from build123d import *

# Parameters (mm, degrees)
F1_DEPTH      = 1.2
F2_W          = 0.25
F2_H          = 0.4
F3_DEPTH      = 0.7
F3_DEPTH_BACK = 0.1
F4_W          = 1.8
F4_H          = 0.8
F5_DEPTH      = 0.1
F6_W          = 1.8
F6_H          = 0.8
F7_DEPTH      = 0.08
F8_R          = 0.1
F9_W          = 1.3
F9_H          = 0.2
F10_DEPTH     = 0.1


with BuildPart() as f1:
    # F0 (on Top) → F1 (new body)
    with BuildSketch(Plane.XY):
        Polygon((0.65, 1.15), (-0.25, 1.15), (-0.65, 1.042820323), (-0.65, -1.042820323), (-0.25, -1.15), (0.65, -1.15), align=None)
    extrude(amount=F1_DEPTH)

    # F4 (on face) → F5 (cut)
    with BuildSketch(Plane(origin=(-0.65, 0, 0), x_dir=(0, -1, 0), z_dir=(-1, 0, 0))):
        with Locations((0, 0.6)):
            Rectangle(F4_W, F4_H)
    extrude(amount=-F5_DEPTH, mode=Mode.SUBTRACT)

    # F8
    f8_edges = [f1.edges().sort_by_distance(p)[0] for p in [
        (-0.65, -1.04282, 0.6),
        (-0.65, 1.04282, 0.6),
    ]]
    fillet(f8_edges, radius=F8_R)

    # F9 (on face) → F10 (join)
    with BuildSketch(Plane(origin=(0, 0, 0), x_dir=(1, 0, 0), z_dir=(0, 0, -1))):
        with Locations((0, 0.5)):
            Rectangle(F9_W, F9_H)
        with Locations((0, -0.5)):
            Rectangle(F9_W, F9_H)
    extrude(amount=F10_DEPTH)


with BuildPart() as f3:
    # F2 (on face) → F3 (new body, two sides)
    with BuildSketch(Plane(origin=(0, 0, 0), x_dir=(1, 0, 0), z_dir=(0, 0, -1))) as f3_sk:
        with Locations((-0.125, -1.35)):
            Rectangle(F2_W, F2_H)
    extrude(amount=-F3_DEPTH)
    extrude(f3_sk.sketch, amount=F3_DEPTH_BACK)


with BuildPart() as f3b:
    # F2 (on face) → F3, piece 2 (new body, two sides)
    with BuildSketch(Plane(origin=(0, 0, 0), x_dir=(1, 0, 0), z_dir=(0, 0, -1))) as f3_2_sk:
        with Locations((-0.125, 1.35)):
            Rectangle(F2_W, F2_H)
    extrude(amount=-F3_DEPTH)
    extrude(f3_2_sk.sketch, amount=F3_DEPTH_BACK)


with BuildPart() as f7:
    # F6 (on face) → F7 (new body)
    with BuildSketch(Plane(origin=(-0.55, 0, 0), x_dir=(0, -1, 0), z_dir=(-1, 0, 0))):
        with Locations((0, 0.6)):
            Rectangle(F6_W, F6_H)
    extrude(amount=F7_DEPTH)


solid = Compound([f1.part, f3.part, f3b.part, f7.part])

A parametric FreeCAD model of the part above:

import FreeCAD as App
import Part
import Sketcher
Q = App.Units.Quantity


def edges_at(feature, points):
    """Names of the edges that pass closest to the given points."""
    edges = feature.Shape.Edges
    near = lambda p: min(range(len(edges)), key=lambda i: edges[i].distToShape(Part.Vertex(*p))[0])
    return sorted({f"Edge{near(p) + 1}" for p in points})


def add_polygon(sketch, points):
    """Adds a closed chain of lines whose ends are joined by coincident constraints."""
    first, n = sketch.GeometryCount, len(points)
    for a, b in zip(points, points[1:] + points[:1]):
        sketch.addGeometry(Part.LineSegment(App.Vector(*a, 0), App.Vector(*b, 0)), False)
    for i in range(n):
        sketch.addConstraint(Sketcher.Constraint("Coincident", first + i, 2, first + (i + 1) % n, 1))

doc = App.newDocument("Part")
body = doc.addObject("PartDesign::Body", "Body")

sketch1 = body.newObject("Sketcher::SketchObject", "Sketch")
sketch1.AttachmentSupport = (doc.getObject("XY_Plane"), [""])
sketch1.MapMode = "FlatFace"
add_polygon(sketch1, [(0.65, 1.15), (-0.25, 1.15), (-0.65, 1.04), (-0.65, -1.04), (-0.25, -1.15), (0.65, -1.15)])
sketch1.addConstraint(Sketcher.Constraint("Horizontal", 0))
sketch1.addConstraint(Sketcher.Constraint("Vertical", 2))
sketch1.addConstraint(Sketcher.Constraint("Horizontal", 4))
sketch1.addConstraint(Sketcher.Constraint("Vertical", 5))
sketch1.addConstraint(Sketcher.Constraint("Symmetric", 0, 2, 3, 2, -1))
sketch1.addConstraint(Sketcher.Constraint("Equal", 1, 3))
sketch1.addConstraint(Sketcher.Constraint("Angle", 1, Q("-165 deg")))
sketch1.addConstraint(Sketcher.Constraint("DistanceX", 0, 2, 0, 1, Q("0.9 mm")))
sketch1.addConstraint(Sketcher.Constraint("DistanceY", 5, 1, 5, 2, Q("2.3 mm")))
sketch1.addConstraint(Sketcher.Constraint("DistanceX", 1, 2, 0, 2, Q("0.4 mm")))
sketch1.addConstraint(Sketcher.Constraint("DistanceX", 0, 2, -1, 1, Q("0.25 mm")))
pad1 = body.newObject("PartDesign::Pad", "Pad")
pad1.Profile = sketch1
pad1.Length = 1.2

sketch2 = body.newObject("Sketcher::SketchObject", "Sketch001")
sketch2.AttachmentSupport = (doc.getObject("YZ_Plane"), [""])
sketch2.MapMode = "FlatFace"
sketch2.AttachmentOffset = App.Placement(App.Vector(0, 0, -0.65), App.Rotation())
add_polygon(sketch2, [(0.9, 1), (0.9, 0.2), (-0.9, 0.2), (-0.9, 1)])
sketch2.addConstraint(Sketcher.Constraint("Vertical", 0))
sketch2.addConstraint(Sketcher.Constraint("Horizontal", 1))
sketch2.addConstraint(Sketcher.Constraint("Vertical", 2))
sketch2.addConstraint(Sketcher.Constraint("Horizontal", 3))
sketch2.addConstraint(Sketcher.Constraint("DistanceX", 1, 2, 1, 1, Q("1.8 mm")))
sketch2.addConstraint(Sketcher.Constraint("DistanceY", 0, 2, 0, 1, Q("0.8 mm")))
sketch2.addConstraint(Sketcher.Constraint("DistanceY", -1, 1, 2, 2, Q("1 mm")))
sketch2.addConstraint(Sketcher.Constraint("DistanceX", -1, 1, 0, 2, Q("0.9 mm")))
pocket1 = body.newObject("PartDesign::Pocket", "Pocket")
pocket1.Profile = sketch2
pocket1.Length = 0.1
pocket1.Reversed = True
doc.recompute()

fillet = body.newObject("PartDesign::Fillet", "Fillet")
fillet.Base = (pocket1, edges_at(pocket1, [(-0.65, -1.043, 0.6), (-0.65, 1.043, 0.6)]))
fillet.Radius = 0.1

sketch3 = body.newObject("Sketcher::SketchObject", "Sketch002")
sketch3.AttachmentSupport = (doc.getObject("XY_Plane"), [""])
sketch3.MapMode = "FlatFace"
add_polygon(sketch3, [(-0.65, -0.6), (-0.65, -0.4), (0.65, -0.4), (0.65, -0.6)])
add_polygon(sketch3, [(-0.65, 0.4), (-0.65, 0.6), (0.65, 0.6), (0.65, 0.4)])
sketch3.addConstraint(Sketcher.Constraint("Vertical", 0))
sketch3.addConstraint(Sketcher.Constraint("Horizontal", 1))
sketch3.addConstraint(Sketcher.Constraint("Vertical", 2))
sketch3.addConstraint(Sketcher.Constraint("Horizontal", 3))
sketch3.addConstraint(Sketcher.Constraint("Vertical", 4))
sketch3.addConstraint(Sketcher.Constraint("Horizontal", 5))
sketch3.addConstraint(Sketcher.Constraint("Vertical", 6))
sketch3.addConstraint(Sketcher.Constraint("Horizontal", 7))
sketch3.addConstraint(Sketcher.Constraint("Symmetric", 2, 2, 4, 2, -1, 1))
sketch3.addConstraint(Sketcher.Constraint("Symmetric", 0, 2, 6, 2, -1, 1))
sketch3.addConstraint(Sketcher.Constraint("Vertical", 3, 2, 4, 2))
sketch3.addConstraint(Sketcher.Constraint("DistanceX", 1, 1, 1, 2, Q("1.3 mm")))
sketch3.addConstraint(Sketcher.Constraint("DistanceY", 0, 1, 0, 2, Q("0.2 mm")))
sketch3.addConstraint(Sketcher.Constraint("DistanceY", 0, 2, 4, 2, Q("1 mm")))
pad2 = body.newObject("PartDesign::Pad", "Pad001")
pad2.Profile = sketch3
pad2.Length = 0.1
pad2.Reversed = True
body2 = doc.addObject("PartDesign::Body", "Body001")

sketch4 = body2.newObject("Sketcher::SketchObject", "Sketch003")
sketch4.AttachmentSupport = (doc.getObject("XY_Plane001"), [""])
sketch4.MapMode = "FlatFace"
add_polygon(sketch4, [(-0.25, 1.15), (-0.25, 1.55), (0, 1.55), (0, 1.15)])
sketch4.addConstraint(Sketcher.Constraint("Vertical", 0))
sketch4.addConstraint(Sketcher.Constraint("Horizontal", 1))
sketch4.addConstraint(Sketcher.Constraint("Vertical", 2))
sketch4.addConstraint(Sketcher.Constraint("Horizontal", 3))
sketch4.addConstraint(Sketcher.Constraint("PointOnObject", 1, 2, -2))
sketch4.addConstraint(Sketcher.Constraint("DistanceY", 0, 1, 0, 2, Q("0.4 mm")))
sketch4.addConstraint(Sketcher.Constraint("DistanceX", 1, 1, 1, 2, Q("0.25 mm")))
sketch4.addConstraint(Sketcher.Constraint("DistanceY", -1, 1, 0, 2, Q("1.55 mm")))
pad3 = body2.newObject("PartDesign::Pad", "Pad002")
pad3.Profile = sketch4
pad3.Type = "TwoLengths"
pad3.Length = 0.7
pad3.Length2 = 0.1
body3 = doc.addObject("PartDesign::Body", "Body002")

sketch5 = body3.newObject("Sketcher::SketchObject", "Sketch004")
sketch5.AttachmentSupport = (doc.getObject("XY_Plane002"), [""])
sketch5.MapMode = "FlatFace"
add_polygon(sketch5, [(-0.25, -1.55), (-0.25, -1.15), (0, -1.15), (0, -1.55)])
sketch5.addConstraint(Sketcher.Constraint("Vertical", 0))
sketch5.addConstraint(Sketcher.Constraint("Horizontal", 1))
sketch5.addConstraint(Sketcher.Constraint("Vertical", 2))
sketch5.addConstraint(Sketcher.Constraint("Horizontal", 3))
sketch5.addConstraint(Sketcher.Constraint("PointOnObject", 1, 2, -2))
sketch5.addConstraint(Sketcher.Constraint("DistanceY", 0, 1, 0, 2, Q("0.4 mm")))
sketch5.addConstraint(Sketcher.Constraint("DistanceX", 1, 1, 1, 2, Q("0.25 mm")))
sketch5.addConstraint(Sketcher.Constraint("DistanceY", 0, 2, -1, 1, Q("1.15 mm")))
pad4 = body3.newObject("PartDesign::Pad", "Pad003")
pad4.Profile = sketch5
pad4.Type = "TwoLengths"
pad4.Length = 0.7
pad4.Length2 = 0.1
body4 = doc.addObject("PartDesign::Body", "Body003")

sketch6 = body4.newObject("Sketcher::SketchObject", "Sketch005")
sketch6.AttachmentSupport = (doc.getObject("YZ_Plane003"), [""])
sketch6.MapMode = "FlatFace"
sketch6.AttachmentOffset = App.Placement(App.Vector(0, 0, -0.55), App.Rotation())
add_polygon(sketch6, [(0.9, 1), (0.9, 0.2), (-0.9, 0.2), (-0.9, 1)])
sketch6.addConstraint(Sketcher.Constraint("Vertical", 0))
sketch6.addConstraint(Sketcher.Constraint("Horizontal", 1))
sketch6.addConstraint(Sketcher.Constraint("Vertical", 2))
sketch6.addConstraint(Sketcher.Constraint("Horizontal", 3))
sketch6.addConstraint(Sketcher.Constraint("DistanceX", 1, 2, 1, 1, Q("1.8 mm")))
sketch6.addConstraint(Sketcher.Constraint("DistanceY", 0, 2, 0, 1, Q("0.8 mm")))
sketch6.addConstraint(Sketcher.Constraint("DistanceY", -1, 1, 2, 2, Q("1 mm")))
sketch6.addConstraint(Sketcher.Constraint("DistanceX", -1, 1, 0, 2, Q("0.9 mm")))
pad5 = body4.newObject("PartDesign::Pad", "Pad004")
pad5.Profile = sketch6
pad5.Length = 0.08
pad5.Reversed = True

doc.recompute()
